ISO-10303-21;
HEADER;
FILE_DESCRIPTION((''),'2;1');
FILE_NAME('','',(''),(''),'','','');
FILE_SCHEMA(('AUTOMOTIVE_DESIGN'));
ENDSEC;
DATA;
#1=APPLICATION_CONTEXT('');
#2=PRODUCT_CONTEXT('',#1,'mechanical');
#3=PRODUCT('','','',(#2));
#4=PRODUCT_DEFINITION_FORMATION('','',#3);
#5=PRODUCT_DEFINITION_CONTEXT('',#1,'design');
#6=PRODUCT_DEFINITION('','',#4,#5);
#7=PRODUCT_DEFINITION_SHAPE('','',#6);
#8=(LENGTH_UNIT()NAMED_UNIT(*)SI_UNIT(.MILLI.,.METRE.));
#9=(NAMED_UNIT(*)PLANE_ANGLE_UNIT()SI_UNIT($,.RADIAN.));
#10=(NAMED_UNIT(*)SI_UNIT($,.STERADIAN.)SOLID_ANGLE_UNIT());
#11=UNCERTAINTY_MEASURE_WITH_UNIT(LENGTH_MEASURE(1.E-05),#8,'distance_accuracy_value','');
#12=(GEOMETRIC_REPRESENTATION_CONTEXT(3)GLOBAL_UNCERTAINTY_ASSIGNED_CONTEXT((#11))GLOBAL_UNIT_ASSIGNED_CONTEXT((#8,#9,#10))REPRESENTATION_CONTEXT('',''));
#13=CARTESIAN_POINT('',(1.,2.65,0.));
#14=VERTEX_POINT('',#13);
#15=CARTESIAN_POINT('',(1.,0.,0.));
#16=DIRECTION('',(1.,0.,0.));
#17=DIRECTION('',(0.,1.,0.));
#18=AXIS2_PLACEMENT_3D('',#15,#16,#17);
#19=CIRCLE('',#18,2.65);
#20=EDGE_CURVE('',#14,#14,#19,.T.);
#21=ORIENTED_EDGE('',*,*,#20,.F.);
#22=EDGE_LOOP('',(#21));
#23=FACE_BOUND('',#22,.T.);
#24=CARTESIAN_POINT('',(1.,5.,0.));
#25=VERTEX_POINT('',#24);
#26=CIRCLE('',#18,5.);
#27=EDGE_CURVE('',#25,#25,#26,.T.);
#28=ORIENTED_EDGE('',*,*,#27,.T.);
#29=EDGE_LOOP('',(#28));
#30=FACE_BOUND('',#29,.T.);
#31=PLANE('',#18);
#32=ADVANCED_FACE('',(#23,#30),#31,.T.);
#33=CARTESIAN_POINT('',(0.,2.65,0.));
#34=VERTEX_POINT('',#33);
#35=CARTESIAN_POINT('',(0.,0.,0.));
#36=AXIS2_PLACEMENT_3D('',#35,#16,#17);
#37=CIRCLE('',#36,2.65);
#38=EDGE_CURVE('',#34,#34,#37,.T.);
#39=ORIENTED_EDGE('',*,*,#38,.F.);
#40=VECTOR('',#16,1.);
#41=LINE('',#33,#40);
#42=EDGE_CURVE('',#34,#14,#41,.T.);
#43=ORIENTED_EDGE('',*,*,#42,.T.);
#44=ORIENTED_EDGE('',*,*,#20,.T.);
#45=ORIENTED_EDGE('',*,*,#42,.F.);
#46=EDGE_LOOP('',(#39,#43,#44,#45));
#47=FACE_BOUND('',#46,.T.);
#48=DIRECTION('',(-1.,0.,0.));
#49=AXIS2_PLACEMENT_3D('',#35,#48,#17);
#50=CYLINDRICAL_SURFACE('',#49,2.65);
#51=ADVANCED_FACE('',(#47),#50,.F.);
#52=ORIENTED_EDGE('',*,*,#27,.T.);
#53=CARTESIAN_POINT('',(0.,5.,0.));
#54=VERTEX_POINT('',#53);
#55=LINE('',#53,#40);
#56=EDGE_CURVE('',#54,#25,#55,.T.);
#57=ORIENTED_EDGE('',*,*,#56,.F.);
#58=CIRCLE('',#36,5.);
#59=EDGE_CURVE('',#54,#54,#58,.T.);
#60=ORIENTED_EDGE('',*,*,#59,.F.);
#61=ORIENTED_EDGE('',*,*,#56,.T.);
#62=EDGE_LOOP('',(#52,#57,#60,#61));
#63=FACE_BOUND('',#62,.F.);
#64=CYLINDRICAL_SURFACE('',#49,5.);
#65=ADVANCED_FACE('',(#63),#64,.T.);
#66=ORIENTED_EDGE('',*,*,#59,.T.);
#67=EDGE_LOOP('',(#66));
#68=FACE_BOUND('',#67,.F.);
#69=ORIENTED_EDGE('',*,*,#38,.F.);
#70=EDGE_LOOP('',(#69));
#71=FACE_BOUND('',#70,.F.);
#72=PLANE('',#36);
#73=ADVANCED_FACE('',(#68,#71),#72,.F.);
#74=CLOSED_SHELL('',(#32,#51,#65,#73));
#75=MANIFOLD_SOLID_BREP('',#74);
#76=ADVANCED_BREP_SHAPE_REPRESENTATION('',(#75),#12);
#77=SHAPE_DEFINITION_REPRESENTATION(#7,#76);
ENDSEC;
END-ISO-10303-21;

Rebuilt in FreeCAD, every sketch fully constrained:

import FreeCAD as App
import Part
import Sketcher
Q = App.Units.Quantity

doc = App.newDocument("Part")
body = doc.addObject("PartDesign::Body", "Body")

sketch1 = doc.addObject("Sketcher::SketchObject", "Sketch")
body.addObject(sketch1)
sketch1.AttachmentSupport = (doc.YZ_Plane, [""])
sketch1.MapMode = "FlatFace"
sketch1.addGeometry([
    Part.Circle(App.Vector(0, 0, 0), App.Vector(0, 0, 1), 5),
    Part.Circle(App.Vector(0, 0, 0), App.Vector(0, 0, 1), 2.65),
], False)
sketch1.addConstraint([
    Sketcher.Constraint("Coincident", 0, 3, -1, 1),
    Sketcher.Constraint("Coincident", 1, 3, -1, 1),
    Sketcher.Constraint("Diameter", 0, Q("10 mm")),
    Sketcher.Constraint("Diameter", 1, Q("5.3 mm")),
])
pad1 = doc.addObject("PartDesign::Pad", "Pad")
body.addObject(pad1)
pad1.Profile = sketch1
pad1.Length = 1

doc.recompute()
